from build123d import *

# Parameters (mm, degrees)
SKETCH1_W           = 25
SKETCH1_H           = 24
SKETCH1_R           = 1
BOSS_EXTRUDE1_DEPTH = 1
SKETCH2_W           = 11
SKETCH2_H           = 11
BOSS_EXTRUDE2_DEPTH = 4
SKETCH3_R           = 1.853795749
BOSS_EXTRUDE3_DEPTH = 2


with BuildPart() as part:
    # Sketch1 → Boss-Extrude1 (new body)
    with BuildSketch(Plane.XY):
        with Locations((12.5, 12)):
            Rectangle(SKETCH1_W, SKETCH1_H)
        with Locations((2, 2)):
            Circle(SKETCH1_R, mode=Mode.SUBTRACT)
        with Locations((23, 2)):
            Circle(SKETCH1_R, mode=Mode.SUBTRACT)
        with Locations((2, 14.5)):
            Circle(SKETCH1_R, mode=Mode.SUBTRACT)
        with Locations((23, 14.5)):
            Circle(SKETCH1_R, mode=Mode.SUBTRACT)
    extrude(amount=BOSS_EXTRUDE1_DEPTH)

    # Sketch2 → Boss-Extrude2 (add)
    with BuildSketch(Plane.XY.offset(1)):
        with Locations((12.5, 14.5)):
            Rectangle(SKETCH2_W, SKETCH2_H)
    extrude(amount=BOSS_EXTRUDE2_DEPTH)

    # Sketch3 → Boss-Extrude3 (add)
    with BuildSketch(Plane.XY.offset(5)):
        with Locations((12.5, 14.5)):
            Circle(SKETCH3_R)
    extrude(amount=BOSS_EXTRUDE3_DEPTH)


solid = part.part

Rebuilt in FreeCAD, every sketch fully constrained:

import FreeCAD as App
import Part
import Sketcher
from FreeCAD import Vector
Q = App.Units.Quantity

doc = App.newDocument("Part")
body = doc.addObject("PartDesign::Body", "Body")

# Sketch on XY plane
sketch1 = body.newObject("Sketcher::SketchObject", "Sketch")
sketch1.AttachmentSupport = (doc.getObject("XY_Plane"), [""])
sketch1.MapMode = "FlatFace"
sketch1.addGeometry(Part.LineSegment(Vector(0, 24, 0), Vector(0, 0, 0)), False)
sketch1.addGeometry(Part.LineSegment(Vector(0, 0, 0), Vector(25, 0, 0)), False)
sketch1.addGeometry(Part.LineSegment(Vector(25, 0, 0), Vector(25, 24, 0)), False)
sketch1.addGeometry(Part.LineSegment(Vector(25, 24, 0), Vector(0, 24, 0)), False)
sketch1.addGeometry(Part.Circle(Vector(2, 2, 0), Vector(0, 0, 1), 1), False)
sketch1.addGeometry(Part.Circle(Vector(23, 2, 0), Vector(0, 0, 1), 1), False)
sketch1.addGeometry(Part.Circle(Vector(2, 14.5, 0), Vector(0, 0, 1), 1), False)
sketch1.addGeometry(Part.Circle(Vector(23, 14.5, 0), Vector(0, 0, 1), 1), False)
sketch1.addConstraint(Sketcher.Constraint("Coincident", 0, 2, 1, 1))
sketch1.addConstraint(Sketcher.Constraint("Coincident", 1, 2, 2, 1))
sketch1.addConstraint(Sketcher.Constraint("Coincident", 2, 2, 3, 1))
sketch1.addConstraint(Sketcher.Constraint("Coincident", 3, 2, 0, 1))
sketch1.addConstraint(Sketcher.Constraint("Vertical", 0))
sketch1.addConstraint(Sketcher.Constraint("Horizontal", 1))
sketch1.addConstraint(Sketcher.Constraint("Vertical", 2))
sketch1.addConstraint(Sketcher.Constraint("Horizontal", 3))
sketch1.addConstraint(Sketcher.Constraint("Coincident", 0, 2, -1, 1))
sketch1.addConstraint(Sketcher.Constraint("Equal", 4, 5))
sketch1.addConstraint(Sketcher.Constraint("Equal", 5, 6))
sketch1.addConstraint(Sketcher.Constraint("Equal", 6, 7))
sketch1.addConstraint(Sketcher.Constraint("Horizontal", 4, 3, 5, 3))
sketch1.addConstraint(Sketcher.Constraint("Horizontal", 6, 3, 7, 3))
sketch1.addConstraint(Sketcher.Constraint("Vertical", 4, 3, 6, 3))
sketch1.addConstraint(Sketcher.Constraint("Vertical", 5, 3, 7, 3))
sketch1.addConstraint(Sketcher.Constraint("Diameter", 4, Q("2 mm")))
sketch1.addConstraint(Sketcher.Constraint("DistanceX", 1, 1, 1, 2, Q("25 mm")))
sketch1.addConstraint(Sketcher.Constraint("DistanceY", 0, 2, 0, 1, Q("24 mm")))
sketch1.addConstraint(Sketcher.Constraint("DistanceX", -1, 1, 4, 3, Q("2 mm")))
sketch1.addConstraint(Sketcher.Constraint("DistanceY", -1, 1, 4, 3, Q("2 mm")))
sketch1.addConstraint(Sketcher.Constraint("DistanceX", -1, 1, 5, 3, Q("23 mm")))
sketch1.addConstraint(Sketcher.Constraint("DistanceY", -1, 1, 6, 3, Q("14.5 mm")))
pad1 = body.newObject("PartDesign::Pad", "Pad")
pad1.Profile = sketch1
pad1.Length = 1

# Sketch on XY plane
sketch2 = body.newObject("Sketcher::SketchObject", "Sketch001")
sketch2.AttachmentSupport = (doc.getObject("XY_Plane"), [""])
sketch2.MapMode = "FlatFace"
sketch2.AttachmentOffset = App.Placement(Vector(0, 0, 1), App.Rotation())
sketch2.addGeometry(Part.LineSegment(Vector(7, 20, 0), Vector(7, 9, 0)), False)
sketch2.addGeometry(Part.LineSegment(Vector(7, 9, 0), Vector(18, 9, 0)), False)
sketch2.addGeometry(Part.LineSegment(Vector(18, 9, 0), Vector(18, 20, 0)), False)
sketch2.addGeometry(Part.LineSegment(Vector(18, 20, 0), Vector(7, 20, 0)), False)
sketch2.addConstraint(Sketcher.Constraint("Coincident", 0, 2, 1, 1))
sketch2.addConstraint(Sketcher.Constraint("Coincident", 1, 2, 2, 1))
sketch2.addConstraint(Sketcher.Constraint("Coincident", 2, 2, 3, 1))
sketch2.addConstraint(Sketcher.Constraint("Coincident", 3, 2, 0, 1))
sketch2.addConstraint(Sketcher.Constraint("Vertical", 0))
sketch2.addConstraint(Sketcher.Constraint("Horizontal", 1))
sketch2.addConstraint(Sketcher.Constraint("Vertical", 2))
sketch2.addConstraint(Sketcher.Constraint("Horizontal", 3))
sketch2.addConstraint(Sketcher.Constraint("Equal", 3, 0))
sketch2.addConstraint(Sketcher.Constraint("DistanceX", 1, 1, 1, 2, Q("11 mm")))
sketch2.addConstraint(Sketcher.Constraint("DistanceX", -1, 1, 0, 2, Q("7 mm")))
sketch2.addConstraint(Sketcher.Constraint("DistanceY", -1, 1, 0, 2, Q("9 mm")))
pad2 = body.newObject("PartDesign::Pad", "Pad001")
pad2.Profile = sketch2
pad2.Length = 4

# Sketch on XY plane
sketch3 = body.newObject("Sketcher::SketchObject", "Sketch002")
sketch3.AttachmentSupport = (doc.getObject("XY_Plane"), [""])
sketch3.MapMode = "FlatFace"
sketch3.AttachmentOffset = App.Placement(Vector(0, 0, 5), App.Rotation())
sketch3.addGeometry(Part.Circle(Vector(12.5, 14.5, 0), Vector(0, 0, 1), 1.853796), False)
sketch3.addConstraint(Sketcher.Constraint("DistanceX", -1, 1, 0, 3, Q("12.5 mm")))
sketch3.addConstraint(Sketcher.Constraint("DistanceY", -1, 1, 0, 3, Q("14.5 mm")))
sketch3.addConstraint(Sketcher.Constraint("Diameter", 0, Q("3.707591 mm")))
pad3 = body.newObject("PartDesign::Pad", "Pad002")
pad3.Profile = sketch3
pad3.Length = 2

doc.recompute()
